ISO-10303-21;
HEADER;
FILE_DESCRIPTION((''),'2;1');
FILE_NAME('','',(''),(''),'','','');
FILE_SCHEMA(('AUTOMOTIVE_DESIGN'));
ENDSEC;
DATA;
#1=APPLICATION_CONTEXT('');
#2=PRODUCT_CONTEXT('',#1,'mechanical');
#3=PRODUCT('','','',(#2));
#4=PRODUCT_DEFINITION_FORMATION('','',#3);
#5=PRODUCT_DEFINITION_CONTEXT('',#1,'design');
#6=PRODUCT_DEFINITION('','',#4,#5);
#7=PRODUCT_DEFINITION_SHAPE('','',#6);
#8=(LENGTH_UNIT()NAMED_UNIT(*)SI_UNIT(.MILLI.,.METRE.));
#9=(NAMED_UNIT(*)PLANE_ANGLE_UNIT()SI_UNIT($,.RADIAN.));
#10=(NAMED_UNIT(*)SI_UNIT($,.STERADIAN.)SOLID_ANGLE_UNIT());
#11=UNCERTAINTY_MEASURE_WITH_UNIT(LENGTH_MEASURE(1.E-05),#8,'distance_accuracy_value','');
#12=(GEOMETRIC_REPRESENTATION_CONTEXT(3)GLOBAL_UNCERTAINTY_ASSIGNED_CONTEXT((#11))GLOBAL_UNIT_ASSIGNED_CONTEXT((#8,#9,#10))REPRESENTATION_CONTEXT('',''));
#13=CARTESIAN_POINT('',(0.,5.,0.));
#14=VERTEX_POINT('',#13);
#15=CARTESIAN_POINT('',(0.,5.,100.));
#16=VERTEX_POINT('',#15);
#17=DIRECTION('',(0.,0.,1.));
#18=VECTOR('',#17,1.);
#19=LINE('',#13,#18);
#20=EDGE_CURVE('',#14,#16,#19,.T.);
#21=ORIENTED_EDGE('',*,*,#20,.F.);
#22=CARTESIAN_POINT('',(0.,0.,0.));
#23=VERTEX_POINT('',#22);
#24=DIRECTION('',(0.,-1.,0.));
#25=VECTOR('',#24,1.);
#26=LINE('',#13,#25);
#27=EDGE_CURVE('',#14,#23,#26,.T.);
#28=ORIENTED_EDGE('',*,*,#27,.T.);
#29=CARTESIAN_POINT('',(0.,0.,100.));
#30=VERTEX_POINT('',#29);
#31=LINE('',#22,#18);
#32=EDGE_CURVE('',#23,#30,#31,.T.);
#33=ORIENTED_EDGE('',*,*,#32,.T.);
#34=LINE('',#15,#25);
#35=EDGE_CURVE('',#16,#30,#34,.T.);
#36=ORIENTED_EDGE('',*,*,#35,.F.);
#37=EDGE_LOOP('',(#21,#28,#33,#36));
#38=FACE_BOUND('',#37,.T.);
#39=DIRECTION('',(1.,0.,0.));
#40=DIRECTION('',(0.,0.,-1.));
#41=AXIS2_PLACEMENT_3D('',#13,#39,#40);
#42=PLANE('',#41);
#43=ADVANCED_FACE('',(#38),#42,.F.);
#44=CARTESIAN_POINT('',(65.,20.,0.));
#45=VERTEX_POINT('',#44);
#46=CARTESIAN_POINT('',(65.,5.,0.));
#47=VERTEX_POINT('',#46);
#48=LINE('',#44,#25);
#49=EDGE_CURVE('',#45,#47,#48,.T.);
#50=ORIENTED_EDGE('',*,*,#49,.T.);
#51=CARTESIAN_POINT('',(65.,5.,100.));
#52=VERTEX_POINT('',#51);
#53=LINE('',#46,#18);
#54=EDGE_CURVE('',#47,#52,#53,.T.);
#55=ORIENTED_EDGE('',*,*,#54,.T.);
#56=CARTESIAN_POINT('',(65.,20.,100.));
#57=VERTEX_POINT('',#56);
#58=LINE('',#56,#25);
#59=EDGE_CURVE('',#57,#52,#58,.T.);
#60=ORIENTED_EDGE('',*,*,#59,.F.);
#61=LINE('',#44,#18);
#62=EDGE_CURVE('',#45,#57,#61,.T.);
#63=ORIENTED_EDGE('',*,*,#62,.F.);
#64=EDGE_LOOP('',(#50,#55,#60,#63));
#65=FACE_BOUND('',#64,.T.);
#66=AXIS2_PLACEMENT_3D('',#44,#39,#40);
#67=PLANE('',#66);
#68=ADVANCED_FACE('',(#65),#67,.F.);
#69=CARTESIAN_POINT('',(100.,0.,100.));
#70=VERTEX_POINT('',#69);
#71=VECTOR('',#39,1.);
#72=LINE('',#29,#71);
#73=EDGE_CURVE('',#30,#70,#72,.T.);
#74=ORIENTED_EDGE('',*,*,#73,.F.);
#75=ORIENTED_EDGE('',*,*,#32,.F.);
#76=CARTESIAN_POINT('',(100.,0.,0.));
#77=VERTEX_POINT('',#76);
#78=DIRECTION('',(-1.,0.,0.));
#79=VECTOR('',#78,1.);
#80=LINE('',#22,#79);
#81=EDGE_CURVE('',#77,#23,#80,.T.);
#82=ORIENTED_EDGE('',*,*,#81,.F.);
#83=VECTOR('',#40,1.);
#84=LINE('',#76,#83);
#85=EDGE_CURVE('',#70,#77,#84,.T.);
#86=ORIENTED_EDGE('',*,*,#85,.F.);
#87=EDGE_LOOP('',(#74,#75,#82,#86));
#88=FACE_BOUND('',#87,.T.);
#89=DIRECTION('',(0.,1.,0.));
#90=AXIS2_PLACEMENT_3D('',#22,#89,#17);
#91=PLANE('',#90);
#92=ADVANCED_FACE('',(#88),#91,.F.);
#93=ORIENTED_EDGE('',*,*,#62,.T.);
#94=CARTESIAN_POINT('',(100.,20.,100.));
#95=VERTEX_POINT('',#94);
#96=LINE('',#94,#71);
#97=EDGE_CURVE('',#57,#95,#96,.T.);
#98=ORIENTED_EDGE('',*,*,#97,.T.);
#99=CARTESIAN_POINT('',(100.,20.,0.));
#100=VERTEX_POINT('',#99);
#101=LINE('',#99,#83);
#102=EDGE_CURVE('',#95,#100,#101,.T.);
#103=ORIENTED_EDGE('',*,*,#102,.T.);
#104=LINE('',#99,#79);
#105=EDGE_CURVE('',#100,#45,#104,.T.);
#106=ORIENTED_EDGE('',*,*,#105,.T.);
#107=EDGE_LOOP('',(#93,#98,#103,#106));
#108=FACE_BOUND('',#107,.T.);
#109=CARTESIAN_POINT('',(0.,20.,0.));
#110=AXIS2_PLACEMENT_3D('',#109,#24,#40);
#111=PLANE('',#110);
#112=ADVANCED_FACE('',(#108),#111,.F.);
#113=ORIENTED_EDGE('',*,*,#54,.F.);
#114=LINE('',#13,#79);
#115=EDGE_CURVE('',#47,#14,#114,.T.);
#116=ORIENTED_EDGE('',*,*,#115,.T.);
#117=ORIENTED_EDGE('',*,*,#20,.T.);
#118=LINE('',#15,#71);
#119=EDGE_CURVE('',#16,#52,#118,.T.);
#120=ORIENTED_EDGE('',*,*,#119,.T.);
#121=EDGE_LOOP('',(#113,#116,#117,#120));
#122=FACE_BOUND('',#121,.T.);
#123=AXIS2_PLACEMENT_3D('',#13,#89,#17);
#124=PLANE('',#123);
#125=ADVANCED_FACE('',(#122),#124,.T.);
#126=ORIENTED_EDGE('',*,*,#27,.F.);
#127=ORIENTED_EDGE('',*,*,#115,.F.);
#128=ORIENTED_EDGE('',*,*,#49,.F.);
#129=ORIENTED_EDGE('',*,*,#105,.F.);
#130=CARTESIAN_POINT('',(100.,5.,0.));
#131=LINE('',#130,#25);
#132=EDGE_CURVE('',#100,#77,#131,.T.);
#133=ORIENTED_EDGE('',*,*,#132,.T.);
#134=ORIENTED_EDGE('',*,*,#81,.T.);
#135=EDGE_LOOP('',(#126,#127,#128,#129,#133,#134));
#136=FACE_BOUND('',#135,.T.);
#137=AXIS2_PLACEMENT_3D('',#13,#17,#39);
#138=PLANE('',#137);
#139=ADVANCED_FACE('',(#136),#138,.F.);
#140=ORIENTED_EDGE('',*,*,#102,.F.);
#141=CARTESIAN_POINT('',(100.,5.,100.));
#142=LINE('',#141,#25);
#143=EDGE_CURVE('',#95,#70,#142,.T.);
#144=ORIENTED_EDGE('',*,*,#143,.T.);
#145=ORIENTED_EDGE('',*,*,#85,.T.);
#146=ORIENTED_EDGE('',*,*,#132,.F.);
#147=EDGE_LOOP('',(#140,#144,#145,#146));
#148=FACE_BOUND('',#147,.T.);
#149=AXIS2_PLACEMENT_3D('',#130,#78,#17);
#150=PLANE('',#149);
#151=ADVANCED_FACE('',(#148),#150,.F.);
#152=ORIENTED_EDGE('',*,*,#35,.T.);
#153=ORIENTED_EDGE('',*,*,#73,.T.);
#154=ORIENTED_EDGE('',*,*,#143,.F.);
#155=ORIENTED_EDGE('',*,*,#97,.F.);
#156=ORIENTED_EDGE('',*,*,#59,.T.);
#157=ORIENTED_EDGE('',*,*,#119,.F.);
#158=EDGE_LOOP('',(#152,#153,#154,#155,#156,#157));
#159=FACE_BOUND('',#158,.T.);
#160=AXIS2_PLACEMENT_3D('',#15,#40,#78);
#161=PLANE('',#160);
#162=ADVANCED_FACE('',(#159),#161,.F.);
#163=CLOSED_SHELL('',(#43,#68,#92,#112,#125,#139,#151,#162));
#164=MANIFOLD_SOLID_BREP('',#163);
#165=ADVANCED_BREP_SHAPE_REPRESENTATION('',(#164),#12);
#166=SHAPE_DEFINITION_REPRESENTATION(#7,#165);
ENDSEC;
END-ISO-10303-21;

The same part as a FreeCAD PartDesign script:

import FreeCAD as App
import Part
import Sketcher
Q = App.Units.Quantity

doc = App.newDocument("Part")
body = doc.addObject("PartDesign::Body", "Body")

# Sketch on XZ plane
sketch1 = doc.addObject("Sketcher::SketchObject", "Sketch")
body.addObject(sketch1)
sketch1.AttachmentSupport = (doc.XZ_Plane, [""])
sketch1.MapMode = "FlatFace"
sketch1.addGeometry([
    Part.LineSegment(App.Vector(0, 0, 0), App.Vector(0, 100, 0)),
    Part.LineSegment(App.Vector(0, 100, 0), App.Vector(100, 100, 0)),
    Part.LineSegment(App.Vector(100, 100, 0), App.Vector(100, 0, 0)),
    Part.LineSegment(App.Vector(100, 0, 0), App.Vector(0, 0, 0)),
], False)
sketch1.addConstraint([
    Sketcher.Constraint("Coincident", 0, 2, 1, 1),
    Sketcher.Constraint("Coincident", 1, 2, 2, 1),
    Sketcher.Constraint("Coincident", 2, 2, 3, 1),
    Sketcher.Constraint("Coincident", 3, 2, 0, 1),
    Sketcher.Constraint("Vertical", 0),
    Sketcher.Constraint("Horizontal", 1),
    Sketcher.Constraint("Vertical", 2),
    Sketcher.Constraint("Horizontal", 3),
    Sketcher.Constraint("Coincident", 3, 2, -1, 1),
    Sketcher.Constraint("Equal", 3, 0),
    Sketcher.Constraint("DistanceX", 1, 1, 1, 2, Q("100 mm")),
])
pad1 = doc.addObject("PartDesign::Pad", "Pad")
body.addObject(pad1)
pad1.Profile = sketch1
pad1.Length = 5
pad1.Reversed = True

# Sketch on XZ plane
sketch2 = doc.addObject("Sketcher::SketchObject", "Sketch001")
body.addObject(sketch2)
sketch2.AttachmentSupport = (doc.XZ_Plane, [""])
sketch2.MapMode = "FlatFace"
sketch2.AttachmentOffset = App.Placement(App.Vector(0, 0, -5), App.Rotation())
sketch2.addGeometry([
    Part.LineSegment(App.Vector(65, 0, 0), App.Vector(65, 100, 0)),
    Part.LineSegment(App.Vector(65, 100, 0), App.Vector(100, 100, 0)),
    Part.LineSegment(App.Vector(100, 100, 0), App.Vector(100, 0, 0)),
    Part.LineSegment(App.Vector(100, 0, 0), App.Vector(65, 0, 0)),
], False)
sketch2.addConstraint([
    Sketcher.Constraint("Coincident", 0, 2, 1, 1),
    Sketcher.Constraint("Coincident", 1, 2, 2, 1),
    Sketcher.Constraint("Coincident", 2, 2, 3, 1),
    Sketcher.Constraint("Coincident", 3, 2, 0, 1),
    Sketcher.Constraint("Vertical", 0),
    Sketcher.Constraint("Horizontal", 1),
    Sketcher.Constraint("Vertical", 2),
    Sketcher.Constraint("Horizontal", 3),
    Sketcher.Constraint("PointOnObject", 2, 2, -1),
    Sketcher.Constraint("DistanceX", 1, 1, 1, 2, Q("35 mm")),
    Sketcher.Constraint("DistanceY", 0, 1, 0, 2, Q("100 mm")),
    Sketcher.Constraint("DistanceX", -1, 1, 0, 2, Q("65 mm")),
])
pad2 = doc.addObject("PartDesign::Pad", "Pad001")
body.addObject(pad2)
pad2.Profile = sketch2
pad2.Length = 15
pad2.Reversed = True

doc.recompute()
